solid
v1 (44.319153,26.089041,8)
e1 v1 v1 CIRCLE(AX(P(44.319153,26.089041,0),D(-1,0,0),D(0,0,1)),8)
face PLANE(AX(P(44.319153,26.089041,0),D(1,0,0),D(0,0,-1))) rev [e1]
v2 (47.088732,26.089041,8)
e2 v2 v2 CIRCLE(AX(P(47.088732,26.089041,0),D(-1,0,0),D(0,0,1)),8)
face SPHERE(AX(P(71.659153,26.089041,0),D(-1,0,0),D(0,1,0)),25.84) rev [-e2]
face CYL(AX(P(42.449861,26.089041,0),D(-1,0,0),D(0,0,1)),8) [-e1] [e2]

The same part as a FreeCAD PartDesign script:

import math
import FreeCAD as App
import Part
import Sketcher

V = App.Vector

doc = App.newDocument("Part")
body = doc.addObject("PartDesign::Body", "Body")

# Sketch on XY plane
sketch1 = doc.addObject("Sketcher::SketchObject", "Sketch")
body.addObject(sketch1)
sketch1.AttachmentSupport = (doc.XY_Plane, [""])
sketch1.MapMode = "FlatFace"
sketch1.addGeometry(Part.LineSegment(V(44.3, 34.1, 0), V(44.3, 26.1, 0)), False)
sketch1.addGeometry(Part.LineSegment(V(44.3, 26.1, 0), V(45.8, 26.1, 0)), False)
sketch1.addGeometry(Part.ArcOfCircle(Part.Circle(V(71.7, 26.1, 0), V(0, 0, 1), 25.8), math.radians(161.97), math.radians(180)), False)
sketch1.addGeometry(Part.LineSegment(V(47.1, 34.1, 0), V(44.3, 34.1, 0)), False)
sketch1.addGeometry(Part.LineSegment(V(44.3, 26.1, 0), V(71.7, 26.1, 0)), True)  # axis
sketch1.addConstraint(Sketcher.Constraint("Coincident", 0, 2, 1, 1))
sketch1.addConstraint(Sketcher.Constraint("Coincident", 1, 2, 2, 2))
sketch1.addConstraint(Sketcher.Constraint("Coincident", 2, 1, 3, 1))
sketch1.addConstraint(Sketcher.Constraint("Coincident", 3, 2, 0, 1))
sketch1.addConstraint(Sketcher.Constraint("Vertical", 0))
sketch1.addConstraint(Sketcher.Constraint("Horizontal", 1))
sketch1.addConstraint(Sketcher.Constraint("Horizontal", 3))
sketch1.addConstraint(Sketcher.Constraint("Horizontal", 4))
sketch1.addConstraint(Sketcher.Constraint("Coincident", 4, 1, 0, 2))
sketch1.addConstraint(Sketcher.Constraint("Coincident", 4, 2, 2, 3))
sketch1.addConstraint(Sketcher.Constraint("DistanceY", 0, 2, 0, 1, 8.0))
sketch1.addConstraint(Sketcher.Constraint("Radius", 2, 25.84))
sketch1.addConstraint(Sketcher.Constraint("DistanceX", 1, 1, 1, 2, 1.5))
sketch1.addConstraint(Sketcher.Constraint("DistanceY", -1, 1, 2, 3, 26.089041))
sketch1.addConstraint(Sketcher.Constraint("DistanceX", -1, 1, 2, 1, 47.088732))
revolution = doc.addObject("PartDesign::Revolution", "Revolution")
body.addObject(revolution)
revolution.Profile = sketch1
revolution.ReferenceAxis = (sketch1, ["Axis0"])
revolution.Angle = 360

doc.recompute()
